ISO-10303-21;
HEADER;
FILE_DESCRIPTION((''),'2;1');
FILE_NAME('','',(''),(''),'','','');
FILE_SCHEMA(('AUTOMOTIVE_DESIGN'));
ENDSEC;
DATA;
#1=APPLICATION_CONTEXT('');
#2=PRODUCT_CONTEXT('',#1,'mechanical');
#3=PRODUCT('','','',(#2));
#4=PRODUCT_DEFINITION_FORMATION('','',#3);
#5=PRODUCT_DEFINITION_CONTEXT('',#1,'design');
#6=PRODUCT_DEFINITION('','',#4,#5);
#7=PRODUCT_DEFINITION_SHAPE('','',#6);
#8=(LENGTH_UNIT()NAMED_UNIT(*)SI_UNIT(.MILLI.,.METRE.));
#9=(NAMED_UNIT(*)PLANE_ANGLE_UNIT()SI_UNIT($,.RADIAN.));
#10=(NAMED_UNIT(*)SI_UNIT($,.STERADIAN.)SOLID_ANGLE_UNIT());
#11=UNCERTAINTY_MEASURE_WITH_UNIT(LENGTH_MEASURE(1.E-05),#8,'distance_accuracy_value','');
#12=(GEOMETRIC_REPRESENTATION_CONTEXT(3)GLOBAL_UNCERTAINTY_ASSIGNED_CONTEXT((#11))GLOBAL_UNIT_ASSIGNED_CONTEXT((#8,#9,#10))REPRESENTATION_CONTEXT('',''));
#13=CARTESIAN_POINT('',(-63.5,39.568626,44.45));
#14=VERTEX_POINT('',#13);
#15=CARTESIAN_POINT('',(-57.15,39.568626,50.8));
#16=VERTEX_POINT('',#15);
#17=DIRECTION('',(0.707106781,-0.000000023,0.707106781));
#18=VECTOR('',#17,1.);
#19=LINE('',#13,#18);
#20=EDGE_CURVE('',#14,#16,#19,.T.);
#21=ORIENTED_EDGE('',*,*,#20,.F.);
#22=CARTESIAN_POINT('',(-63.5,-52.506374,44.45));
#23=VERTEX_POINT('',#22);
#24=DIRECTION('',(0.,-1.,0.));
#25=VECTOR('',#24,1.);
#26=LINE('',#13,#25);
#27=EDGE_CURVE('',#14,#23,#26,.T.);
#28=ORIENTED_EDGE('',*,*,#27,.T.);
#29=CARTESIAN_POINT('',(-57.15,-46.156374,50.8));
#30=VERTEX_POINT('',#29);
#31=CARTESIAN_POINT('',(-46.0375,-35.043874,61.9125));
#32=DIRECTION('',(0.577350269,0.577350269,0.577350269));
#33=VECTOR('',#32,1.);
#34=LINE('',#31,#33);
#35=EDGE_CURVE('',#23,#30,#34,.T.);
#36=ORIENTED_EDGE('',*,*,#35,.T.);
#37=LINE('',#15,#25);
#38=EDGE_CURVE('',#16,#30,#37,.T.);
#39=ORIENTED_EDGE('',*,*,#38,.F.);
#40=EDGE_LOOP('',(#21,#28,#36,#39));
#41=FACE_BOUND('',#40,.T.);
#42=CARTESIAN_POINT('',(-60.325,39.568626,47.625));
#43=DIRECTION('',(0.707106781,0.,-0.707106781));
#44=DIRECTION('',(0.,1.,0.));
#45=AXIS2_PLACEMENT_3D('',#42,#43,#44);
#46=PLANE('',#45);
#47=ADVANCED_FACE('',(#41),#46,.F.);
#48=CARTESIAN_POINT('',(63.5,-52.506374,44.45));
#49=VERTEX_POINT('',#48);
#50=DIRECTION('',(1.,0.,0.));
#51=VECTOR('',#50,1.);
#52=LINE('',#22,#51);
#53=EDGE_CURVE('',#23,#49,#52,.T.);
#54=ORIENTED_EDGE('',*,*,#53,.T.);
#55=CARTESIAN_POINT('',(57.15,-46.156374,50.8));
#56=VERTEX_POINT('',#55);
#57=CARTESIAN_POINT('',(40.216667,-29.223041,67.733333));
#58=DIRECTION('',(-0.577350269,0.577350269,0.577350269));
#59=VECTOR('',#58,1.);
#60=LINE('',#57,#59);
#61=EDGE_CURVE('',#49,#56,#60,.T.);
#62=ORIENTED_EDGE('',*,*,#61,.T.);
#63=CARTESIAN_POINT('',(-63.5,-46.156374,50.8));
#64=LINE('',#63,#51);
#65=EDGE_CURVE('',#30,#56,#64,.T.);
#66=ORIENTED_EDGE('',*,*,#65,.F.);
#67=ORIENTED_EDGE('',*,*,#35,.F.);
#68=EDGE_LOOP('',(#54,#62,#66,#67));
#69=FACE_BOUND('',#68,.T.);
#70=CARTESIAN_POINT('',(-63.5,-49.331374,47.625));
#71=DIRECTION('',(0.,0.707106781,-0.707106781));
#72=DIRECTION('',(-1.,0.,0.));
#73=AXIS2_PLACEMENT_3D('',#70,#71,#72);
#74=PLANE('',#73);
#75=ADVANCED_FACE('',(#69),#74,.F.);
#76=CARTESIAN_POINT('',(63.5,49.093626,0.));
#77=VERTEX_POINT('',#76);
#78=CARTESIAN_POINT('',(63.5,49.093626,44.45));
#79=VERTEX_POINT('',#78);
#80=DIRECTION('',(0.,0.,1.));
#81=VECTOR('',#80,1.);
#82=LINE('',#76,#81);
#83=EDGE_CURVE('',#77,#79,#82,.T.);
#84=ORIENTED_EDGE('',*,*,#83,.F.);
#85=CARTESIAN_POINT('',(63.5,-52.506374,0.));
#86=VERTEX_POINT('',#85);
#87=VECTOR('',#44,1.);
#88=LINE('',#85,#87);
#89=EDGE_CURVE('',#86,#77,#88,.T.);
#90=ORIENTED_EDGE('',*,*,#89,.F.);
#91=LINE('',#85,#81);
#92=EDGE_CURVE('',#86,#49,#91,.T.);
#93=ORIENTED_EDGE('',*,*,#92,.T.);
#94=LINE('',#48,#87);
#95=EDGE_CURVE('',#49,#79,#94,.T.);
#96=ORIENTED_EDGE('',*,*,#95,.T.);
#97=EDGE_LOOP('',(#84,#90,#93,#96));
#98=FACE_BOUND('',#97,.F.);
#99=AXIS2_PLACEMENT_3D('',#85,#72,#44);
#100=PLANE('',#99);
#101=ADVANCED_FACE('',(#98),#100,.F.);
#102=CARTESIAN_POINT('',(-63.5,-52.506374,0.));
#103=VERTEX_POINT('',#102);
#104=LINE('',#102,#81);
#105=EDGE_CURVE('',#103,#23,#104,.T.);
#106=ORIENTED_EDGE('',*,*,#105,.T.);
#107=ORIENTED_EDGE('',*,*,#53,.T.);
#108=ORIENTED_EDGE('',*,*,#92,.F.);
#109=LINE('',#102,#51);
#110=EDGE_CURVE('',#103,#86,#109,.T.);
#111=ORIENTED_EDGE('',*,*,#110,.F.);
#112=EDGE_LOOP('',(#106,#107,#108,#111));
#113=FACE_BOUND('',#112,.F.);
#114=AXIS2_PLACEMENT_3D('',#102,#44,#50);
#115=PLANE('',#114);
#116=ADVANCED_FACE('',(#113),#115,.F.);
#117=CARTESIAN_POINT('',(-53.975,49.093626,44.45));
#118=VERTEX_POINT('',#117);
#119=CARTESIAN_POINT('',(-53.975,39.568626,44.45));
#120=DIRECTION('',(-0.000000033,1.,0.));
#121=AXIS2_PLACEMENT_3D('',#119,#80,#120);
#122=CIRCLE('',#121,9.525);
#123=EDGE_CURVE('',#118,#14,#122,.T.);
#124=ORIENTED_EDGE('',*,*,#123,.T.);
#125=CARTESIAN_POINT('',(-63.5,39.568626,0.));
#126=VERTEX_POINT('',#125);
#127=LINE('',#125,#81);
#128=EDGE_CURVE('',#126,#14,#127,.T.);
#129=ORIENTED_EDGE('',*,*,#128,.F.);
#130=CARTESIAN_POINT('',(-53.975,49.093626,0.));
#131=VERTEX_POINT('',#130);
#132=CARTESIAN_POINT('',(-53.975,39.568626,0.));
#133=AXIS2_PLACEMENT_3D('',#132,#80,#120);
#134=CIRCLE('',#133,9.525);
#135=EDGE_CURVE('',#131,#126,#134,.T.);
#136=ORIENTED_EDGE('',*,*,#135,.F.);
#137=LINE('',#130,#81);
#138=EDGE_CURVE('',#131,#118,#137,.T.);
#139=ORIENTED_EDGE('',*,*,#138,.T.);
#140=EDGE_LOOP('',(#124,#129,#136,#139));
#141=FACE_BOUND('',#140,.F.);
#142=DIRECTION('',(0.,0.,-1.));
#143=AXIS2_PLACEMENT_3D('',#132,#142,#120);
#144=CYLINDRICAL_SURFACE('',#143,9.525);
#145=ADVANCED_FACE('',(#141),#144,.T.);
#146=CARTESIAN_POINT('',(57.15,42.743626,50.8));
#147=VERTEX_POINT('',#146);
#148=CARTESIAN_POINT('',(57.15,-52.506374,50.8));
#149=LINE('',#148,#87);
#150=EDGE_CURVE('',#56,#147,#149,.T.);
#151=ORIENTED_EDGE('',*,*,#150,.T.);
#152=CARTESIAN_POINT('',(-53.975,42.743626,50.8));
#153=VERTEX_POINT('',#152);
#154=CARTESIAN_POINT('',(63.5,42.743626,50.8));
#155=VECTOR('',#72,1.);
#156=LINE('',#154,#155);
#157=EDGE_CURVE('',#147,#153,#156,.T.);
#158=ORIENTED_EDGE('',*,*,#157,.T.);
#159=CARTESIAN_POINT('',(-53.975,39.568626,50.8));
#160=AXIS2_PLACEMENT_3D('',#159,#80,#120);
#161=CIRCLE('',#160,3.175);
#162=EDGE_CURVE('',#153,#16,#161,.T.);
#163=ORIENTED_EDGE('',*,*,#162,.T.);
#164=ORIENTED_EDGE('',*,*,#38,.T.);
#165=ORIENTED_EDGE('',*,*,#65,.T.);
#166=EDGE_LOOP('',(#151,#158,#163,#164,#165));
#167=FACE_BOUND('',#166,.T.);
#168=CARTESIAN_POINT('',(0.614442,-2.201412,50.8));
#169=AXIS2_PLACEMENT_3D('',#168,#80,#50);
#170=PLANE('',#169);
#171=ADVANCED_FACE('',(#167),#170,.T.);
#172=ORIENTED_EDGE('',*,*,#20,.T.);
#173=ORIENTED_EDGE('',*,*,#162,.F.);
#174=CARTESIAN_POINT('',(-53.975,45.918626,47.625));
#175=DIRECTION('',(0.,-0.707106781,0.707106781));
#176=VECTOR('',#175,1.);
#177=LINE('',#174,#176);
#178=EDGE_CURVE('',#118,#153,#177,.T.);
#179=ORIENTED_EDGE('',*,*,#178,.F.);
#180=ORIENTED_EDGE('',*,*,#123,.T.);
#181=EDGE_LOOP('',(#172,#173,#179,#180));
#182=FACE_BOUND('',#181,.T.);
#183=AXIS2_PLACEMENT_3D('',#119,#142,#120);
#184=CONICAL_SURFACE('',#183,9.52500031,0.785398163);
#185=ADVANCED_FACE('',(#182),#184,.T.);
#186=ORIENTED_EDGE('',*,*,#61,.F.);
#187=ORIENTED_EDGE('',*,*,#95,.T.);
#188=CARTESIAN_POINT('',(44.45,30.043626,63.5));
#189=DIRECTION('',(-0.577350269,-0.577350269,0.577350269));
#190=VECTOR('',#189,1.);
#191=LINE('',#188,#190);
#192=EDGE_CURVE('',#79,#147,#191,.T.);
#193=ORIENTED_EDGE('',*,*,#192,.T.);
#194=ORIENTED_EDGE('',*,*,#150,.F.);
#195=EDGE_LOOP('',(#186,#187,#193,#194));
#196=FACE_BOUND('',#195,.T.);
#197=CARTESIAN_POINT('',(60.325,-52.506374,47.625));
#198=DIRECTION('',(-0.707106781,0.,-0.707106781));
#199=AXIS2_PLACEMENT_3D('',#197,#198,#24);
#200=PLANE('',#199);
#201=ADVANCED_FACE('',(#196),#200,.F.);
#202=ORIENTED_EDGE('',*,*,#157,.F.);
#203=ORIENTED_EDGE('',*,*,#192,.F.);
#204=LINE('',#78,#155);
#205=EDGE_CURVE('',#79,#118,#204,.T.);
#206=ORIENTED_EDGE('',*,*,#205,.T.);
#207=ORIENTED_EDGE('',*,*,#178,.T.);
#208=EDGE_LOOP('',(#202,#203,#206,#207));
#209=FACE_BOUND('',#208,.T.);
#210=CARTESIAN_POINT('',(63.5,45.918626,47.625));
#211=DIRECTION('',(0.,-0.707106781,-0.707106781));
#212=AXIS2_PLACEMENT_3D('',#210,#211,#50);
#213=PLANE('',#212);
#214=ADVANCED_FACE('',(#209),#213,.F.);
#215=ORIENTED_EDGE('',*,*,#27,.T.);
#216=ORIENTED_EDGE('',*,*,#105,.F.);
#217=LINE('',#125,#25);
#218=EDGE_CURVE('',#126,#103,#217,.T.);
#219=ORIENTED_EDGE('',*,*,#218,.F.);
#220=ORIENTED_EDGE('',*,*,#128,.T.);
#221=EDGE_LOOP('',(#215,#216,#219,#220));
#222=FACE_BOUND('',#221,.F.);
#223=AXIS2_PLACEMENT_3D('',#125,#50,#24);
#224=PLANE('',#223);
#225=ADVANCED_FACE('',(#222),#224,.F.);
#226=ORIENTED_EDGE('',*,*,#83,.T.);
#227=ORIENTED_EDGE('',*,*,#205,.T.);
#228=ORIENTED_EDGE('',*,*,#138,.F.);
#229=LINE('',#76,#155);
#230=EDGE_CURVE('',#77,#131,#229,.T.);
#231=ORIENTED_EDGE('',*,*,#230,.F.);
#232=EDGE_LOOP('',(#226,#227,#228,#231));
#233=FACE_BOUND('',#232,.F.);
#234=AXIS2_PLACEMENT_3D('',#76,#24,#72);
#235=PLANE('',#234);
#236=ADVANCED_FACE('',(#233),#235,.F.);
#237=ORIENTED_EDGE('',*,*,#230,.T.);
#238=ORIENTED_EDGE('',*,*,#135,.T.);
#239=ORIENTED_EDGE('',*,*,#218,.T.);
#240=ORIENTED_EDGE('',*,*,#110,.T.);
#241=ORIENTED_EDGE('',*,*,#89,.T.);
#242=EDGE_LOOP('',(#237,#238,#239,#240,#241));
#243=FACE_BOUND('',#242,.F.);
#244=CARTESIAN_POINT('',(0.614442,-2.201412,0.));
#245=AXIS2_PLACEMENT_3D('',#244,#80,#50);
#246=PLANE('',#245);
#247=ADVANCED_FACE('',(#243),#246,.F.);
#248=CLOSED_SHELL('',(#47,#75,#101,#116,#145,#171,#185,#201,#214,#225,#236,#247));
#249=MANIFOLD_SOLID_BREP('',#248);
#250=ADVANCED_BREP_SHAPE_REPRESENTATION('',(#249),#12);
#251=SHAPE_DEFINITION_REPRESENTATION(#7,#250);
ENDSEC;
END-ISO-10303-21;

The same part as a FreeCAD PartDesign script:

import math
import FreeCAD as App
import Part
import Sketcher
from FreeCAD import Vector
Q = App.Units.Quantity


def edges_at(feature, points):
    """Names of the edges that pass closest to the given points."""
    edges = feature.Shape.Edges
    near = lambda p: min(range(len(edges)), key=lambda i: edges[i].distToShape(Part.Vertex(*p))[0])
    return sorted({f"Edge{near(p) + 1}" for p in points})

doc = App.newDocument("Part")
body = doc.addObject("PartDesign::Body", "Body")

# Sketch on XY plane
sketch1 = body.newObject("Sketcher::SketchObject", "Sketch")
sketch1.AttachmentSupport = (doc.getObject("XY_Plane"), [""])
sketch1.MapMode = "FlatFace"
sketch1.addGeometry([
    Part.LineSegment(Vector(64, 49, 0), Vector(-54, 49, 0)),  # 0
    Part.ArcOfCircle(Part.Circle(Vector(-54, 40, 0), Vector(0, 0, 1), 10), math.radians(90), math.radians(180)),  # 1
    Part.LineSegment(Vector(-64, 40, 0), Vector(-64, -53, 0)),  # 2
    Part.LineSegment(Vector(-64, -53, 0), Vector(64, -53, 0)),  # 3
    Part.LineSegment(Vector(64, -53, 0), Vector(64, 49, 0)),  # 4
], False)
sketch1.addConstraint([
    Sketcher.Constraint("Tangent", 0, 2, 1, 1),
    Sketcher.Constraint("Tangent", 1, 2, 2, 1),
    Sketcher.Constraint("Coincident", 2, 2, 3, 1),
    Sketcher.Constraint("Coincident", 3, 2, 4, 1),
    Sketcher.Constraint("Coincident", 4, 2, 0, 1),
    Sketcher.Constraint("Horizontal", 0),
    Sketcher.Constraint("Vertical", 2),
    Sketcher.Constraint("Horizontal", 3),
    Sketcher.Constraint("Vertical", 4),
    Sketcher.Constraint("DistanceX", 3, 1, 3, 2, Q("5 in")),
    Sketcher.Constraint("DistanceY", 4, 1, 4, 2, Q("4 in")),
    Sketcher.Constraint("Radius", 1, Q("0.375 in")),
    Sketcher.Constraint("DistanceX", 1, 2, -1, 1, Q("2.5 in")),
    Sketcher.Constraint("DistanceY", -1, 1, 1, 3, 39.568626),
])
pad1 = body.newObject("PartDesign::Pad", "Pad")
pad1.Profile = sketch1
pad1.Length = Q("2 in")
doc.recompute()

chamfer = body.newObject("PartDesign::Chamfer", "Chamfer")
chamfer.Base = (pad1, edges_at(pad1, [
    (0, -52.506, 50.8),
    (63.5, -1.706, 50.8),
    (4.763, 49.094, 50.8),
    (-60.71, 46.304, 50.8),
    (-63.5, -6.469, 50.8),
]))
chamfer.Size = Q("0.25 in")

doc.recompute()
